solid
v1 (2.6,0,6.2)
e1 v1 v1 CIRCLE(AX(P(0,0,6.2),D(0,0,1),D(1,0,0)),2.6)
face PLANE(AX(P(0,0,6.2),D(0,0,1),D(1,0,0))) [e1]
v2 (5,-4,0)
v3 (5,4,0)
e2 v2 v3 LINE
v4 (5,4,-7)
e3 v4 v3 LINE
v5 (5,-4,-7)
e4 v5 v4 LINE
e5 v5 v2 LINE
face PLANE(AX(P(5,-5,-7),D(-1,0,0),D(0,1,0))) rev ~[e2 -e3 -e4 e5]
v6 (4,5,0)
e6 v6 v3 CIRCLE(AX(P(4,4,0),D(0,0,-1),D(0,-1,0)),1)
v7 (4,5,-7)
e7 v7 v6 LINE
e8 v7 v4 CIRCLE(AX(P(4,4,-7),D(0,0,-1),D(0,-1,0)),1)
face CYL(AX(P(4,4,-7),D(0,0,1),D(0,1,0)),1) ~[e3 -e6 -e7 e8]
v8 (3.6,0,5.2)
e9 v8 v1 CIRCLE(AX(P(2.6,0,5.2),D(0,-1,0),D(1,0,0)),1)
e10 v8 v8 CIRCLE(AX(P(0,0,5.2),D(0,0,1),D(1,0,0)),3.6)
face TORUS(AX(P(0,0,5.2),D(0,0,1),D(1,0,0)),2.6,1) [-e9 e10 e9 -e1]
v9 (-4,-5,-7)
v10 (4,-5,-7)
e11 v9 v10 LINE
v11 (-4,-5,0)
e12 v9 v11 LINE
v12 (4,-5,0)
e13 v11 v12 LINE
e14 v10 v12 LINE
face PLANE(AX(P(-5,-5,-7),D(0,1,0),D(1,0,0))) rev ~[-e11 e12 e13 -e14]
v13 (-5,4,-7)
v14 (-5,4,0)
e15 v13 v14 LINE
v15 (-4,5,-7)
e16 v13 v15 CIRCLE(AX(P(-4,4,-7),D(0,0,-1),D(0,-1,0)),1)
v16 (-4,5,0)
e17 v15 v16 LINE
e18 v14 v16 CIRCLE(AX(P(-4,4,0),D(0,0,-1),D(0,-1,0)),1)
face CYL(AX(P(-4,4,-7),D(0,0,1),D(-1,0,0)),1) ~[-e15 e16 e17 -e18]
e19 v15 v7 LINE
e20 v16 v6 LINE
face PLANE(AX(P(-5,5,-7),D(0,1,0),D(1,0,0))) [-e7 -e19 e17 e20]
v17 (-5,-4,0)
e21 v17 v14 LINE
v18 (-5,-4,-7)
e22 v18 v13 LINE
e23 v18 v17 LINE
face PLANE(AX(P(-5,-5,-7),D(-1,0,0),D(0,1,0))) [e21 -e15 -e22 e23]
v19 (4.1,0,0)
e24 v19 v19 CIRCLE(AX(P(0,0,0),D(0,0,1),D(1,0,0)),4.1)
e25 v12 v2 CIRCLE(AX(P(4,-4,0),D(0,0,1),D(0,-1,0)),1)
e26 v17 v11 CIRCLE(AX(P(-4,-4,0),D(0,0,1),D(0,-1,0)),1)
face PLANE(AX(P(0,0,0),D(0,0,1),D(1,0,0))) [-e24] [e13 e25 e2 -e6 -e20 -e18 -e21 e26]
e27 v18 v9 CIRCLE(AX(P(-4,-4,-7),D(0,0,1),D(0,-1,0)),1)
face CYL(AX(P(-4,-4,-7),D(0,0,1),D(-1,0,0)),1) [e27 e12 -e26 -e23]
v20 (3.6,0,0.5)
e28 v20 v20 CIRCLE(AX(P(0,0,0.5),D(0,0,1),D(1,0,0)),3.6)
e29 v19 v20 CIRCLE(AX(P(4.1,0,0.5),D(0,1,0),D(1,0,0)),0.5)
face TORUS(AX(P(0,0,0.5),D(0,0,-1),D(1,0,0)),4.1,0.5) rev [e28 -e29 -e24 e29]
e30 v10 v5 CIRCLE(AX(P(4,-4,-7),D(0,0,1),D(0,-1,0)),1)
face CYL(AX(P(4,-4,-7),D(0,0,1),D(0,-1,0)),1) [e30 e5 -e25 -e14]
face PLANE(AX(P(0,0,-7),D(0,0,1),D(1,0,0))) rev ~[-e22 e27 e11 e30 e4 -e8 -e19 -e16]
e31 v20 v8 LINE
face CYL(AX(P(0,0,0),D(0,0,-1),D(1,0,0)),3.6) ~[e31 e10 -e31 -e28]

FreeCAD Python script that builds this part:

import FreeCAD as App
import Part
import Sketcher

V = App.Vector


def edges_at(feature, points):
    """Names of the edges that pass closest to the given points."""
    edges = feature.Shape.Edges
    near = lambda p: min(range(len(edges)), key=lambda i: edges[i].distToShape(Part.Vertex(*p))[0])
    return sorted({f"Edge{near(p) + 1}" for p in points})

doc = App.newDocument("Part")
body = doc.addObject("PartDesign::Body", "Body")

# Sketch on XY plane
sketch1 = doc.addObject("Sketcher::SketchObject", "Sketch")
body.addObject(sketch1)
sketch1.AttachmentSupport = (doc.XY_Plane, [""])
sketch1.MapMode = "FlatFace"
sketch1.addGeometry(Part.Circle(V(0, 0, 0), V(0, 0, 1), 3.6), False)
sketch1.addConstraint([
    Sketcher.Constraint("Coincident", 0, 3, -1, 1),
    Sketcher.Constraint("Diameter", 0, 7.2),
])
pad1 = doc.addObject("PartDesign::Pad", "Pad")
body.addObject(pad1)
pad1.Profile = sketch1
pad1.Length = 6.2
body2 = doc.addObject("PartDesign::Body", "Body001")

# Sketch on XY plane
sketch2 = doc.addObject("Sketcher::SketchObject", "Sketch001")
body2.addObject(sketch2)
sketch2.AttachmentSupport = (doc.getObject("XY_Plane001"), [""])
sketch2.MapMode = "FlatFace"
sketch2.AttachmentOffset = App.Placement(V(0, 0, -7), App.Rotation())
sketch2.addGeometry([
    Part.LineSegment(V(-5, 5, 0), V(-5, -5, 0)),
    Part.LineSegment(V(-5, -5, 0), V(5, -5, 0)),
    Part.LineSegment(V(5, -5, 0), V(5, 5, 0)),
    Part.LineSegment(V(5, 5, 0), V(-5, 5, 0)),
], False)
sketch2.addConstraint([
    Sketcher.Constraint("Coincident", 0, 2, 1, 1),
    Sketcher.Constraint("Coincident", 1, 2, 2, 1),
    Sketcher.Constraint("Coincident", 2, 2, 3, 1),
    Sketcher.Constraint("Coincident", 3, 2, 0, 1),
    Sketcher.Constraint("Vertical", 0),
    Sketcher.Constraint("Horizontal", 1),
    Sketcher.Constraint("Vertical", 2),
    Sketcher.Constraint("Horizontal", 3),
    Sketcher.Constraint("Symmetric", 0, 2, 2, 2, -1, 1),
    Sketcher.Constraint("Equal", 3, 0),
    Sketcher.Constraint("DistanceX", 1, 1, 1, 2, 10.0),
])
pad2 = doc.addObject("PartDesign::Pad", "Pad001")
body2.addObject(pad2)
pad2.Profile = sketch2
pad2.Length = 7
doc.recompute()

boolean = doc.addObject("PartDesign::Boolean", "Boolean")
body2.addObject(boolean)
boolean.Type = "Fuse"
boolean.addObjects([body])
doc.recompute()

fillet = doc.addObject("PartDesign::Fillet", "Fillet")
body2.addObject(fillet)
fillet.Base = (boolean, edges_at(boolean, [
    (-5, -5, -3.5),
    (-5, 5, -3.5),
    (5, -5, -3.5),
    (5, 5, -3.5),
]))
fillet.Radius = 1
doc.recompute()

fillet2 = doc.addObject("PartDesign::Fillet", "Fillet001")
body2.addObject(fillet2)
fillet2.Base = (fillet, edges_at(fillet, [(-3.6, 0, 0)]))
fillet2.Radius = 0.5
doc.recompute()

fillet3 = doc.addObject("PartDesign::Fillet", "Fillet002")
body2.addObject(fillet3)
fillet3.Base = (fillet2, edges_at(fillet2, [(-3.6, 0, 6.2)]))
fillet3.Radius = 1

doc.recompute()
